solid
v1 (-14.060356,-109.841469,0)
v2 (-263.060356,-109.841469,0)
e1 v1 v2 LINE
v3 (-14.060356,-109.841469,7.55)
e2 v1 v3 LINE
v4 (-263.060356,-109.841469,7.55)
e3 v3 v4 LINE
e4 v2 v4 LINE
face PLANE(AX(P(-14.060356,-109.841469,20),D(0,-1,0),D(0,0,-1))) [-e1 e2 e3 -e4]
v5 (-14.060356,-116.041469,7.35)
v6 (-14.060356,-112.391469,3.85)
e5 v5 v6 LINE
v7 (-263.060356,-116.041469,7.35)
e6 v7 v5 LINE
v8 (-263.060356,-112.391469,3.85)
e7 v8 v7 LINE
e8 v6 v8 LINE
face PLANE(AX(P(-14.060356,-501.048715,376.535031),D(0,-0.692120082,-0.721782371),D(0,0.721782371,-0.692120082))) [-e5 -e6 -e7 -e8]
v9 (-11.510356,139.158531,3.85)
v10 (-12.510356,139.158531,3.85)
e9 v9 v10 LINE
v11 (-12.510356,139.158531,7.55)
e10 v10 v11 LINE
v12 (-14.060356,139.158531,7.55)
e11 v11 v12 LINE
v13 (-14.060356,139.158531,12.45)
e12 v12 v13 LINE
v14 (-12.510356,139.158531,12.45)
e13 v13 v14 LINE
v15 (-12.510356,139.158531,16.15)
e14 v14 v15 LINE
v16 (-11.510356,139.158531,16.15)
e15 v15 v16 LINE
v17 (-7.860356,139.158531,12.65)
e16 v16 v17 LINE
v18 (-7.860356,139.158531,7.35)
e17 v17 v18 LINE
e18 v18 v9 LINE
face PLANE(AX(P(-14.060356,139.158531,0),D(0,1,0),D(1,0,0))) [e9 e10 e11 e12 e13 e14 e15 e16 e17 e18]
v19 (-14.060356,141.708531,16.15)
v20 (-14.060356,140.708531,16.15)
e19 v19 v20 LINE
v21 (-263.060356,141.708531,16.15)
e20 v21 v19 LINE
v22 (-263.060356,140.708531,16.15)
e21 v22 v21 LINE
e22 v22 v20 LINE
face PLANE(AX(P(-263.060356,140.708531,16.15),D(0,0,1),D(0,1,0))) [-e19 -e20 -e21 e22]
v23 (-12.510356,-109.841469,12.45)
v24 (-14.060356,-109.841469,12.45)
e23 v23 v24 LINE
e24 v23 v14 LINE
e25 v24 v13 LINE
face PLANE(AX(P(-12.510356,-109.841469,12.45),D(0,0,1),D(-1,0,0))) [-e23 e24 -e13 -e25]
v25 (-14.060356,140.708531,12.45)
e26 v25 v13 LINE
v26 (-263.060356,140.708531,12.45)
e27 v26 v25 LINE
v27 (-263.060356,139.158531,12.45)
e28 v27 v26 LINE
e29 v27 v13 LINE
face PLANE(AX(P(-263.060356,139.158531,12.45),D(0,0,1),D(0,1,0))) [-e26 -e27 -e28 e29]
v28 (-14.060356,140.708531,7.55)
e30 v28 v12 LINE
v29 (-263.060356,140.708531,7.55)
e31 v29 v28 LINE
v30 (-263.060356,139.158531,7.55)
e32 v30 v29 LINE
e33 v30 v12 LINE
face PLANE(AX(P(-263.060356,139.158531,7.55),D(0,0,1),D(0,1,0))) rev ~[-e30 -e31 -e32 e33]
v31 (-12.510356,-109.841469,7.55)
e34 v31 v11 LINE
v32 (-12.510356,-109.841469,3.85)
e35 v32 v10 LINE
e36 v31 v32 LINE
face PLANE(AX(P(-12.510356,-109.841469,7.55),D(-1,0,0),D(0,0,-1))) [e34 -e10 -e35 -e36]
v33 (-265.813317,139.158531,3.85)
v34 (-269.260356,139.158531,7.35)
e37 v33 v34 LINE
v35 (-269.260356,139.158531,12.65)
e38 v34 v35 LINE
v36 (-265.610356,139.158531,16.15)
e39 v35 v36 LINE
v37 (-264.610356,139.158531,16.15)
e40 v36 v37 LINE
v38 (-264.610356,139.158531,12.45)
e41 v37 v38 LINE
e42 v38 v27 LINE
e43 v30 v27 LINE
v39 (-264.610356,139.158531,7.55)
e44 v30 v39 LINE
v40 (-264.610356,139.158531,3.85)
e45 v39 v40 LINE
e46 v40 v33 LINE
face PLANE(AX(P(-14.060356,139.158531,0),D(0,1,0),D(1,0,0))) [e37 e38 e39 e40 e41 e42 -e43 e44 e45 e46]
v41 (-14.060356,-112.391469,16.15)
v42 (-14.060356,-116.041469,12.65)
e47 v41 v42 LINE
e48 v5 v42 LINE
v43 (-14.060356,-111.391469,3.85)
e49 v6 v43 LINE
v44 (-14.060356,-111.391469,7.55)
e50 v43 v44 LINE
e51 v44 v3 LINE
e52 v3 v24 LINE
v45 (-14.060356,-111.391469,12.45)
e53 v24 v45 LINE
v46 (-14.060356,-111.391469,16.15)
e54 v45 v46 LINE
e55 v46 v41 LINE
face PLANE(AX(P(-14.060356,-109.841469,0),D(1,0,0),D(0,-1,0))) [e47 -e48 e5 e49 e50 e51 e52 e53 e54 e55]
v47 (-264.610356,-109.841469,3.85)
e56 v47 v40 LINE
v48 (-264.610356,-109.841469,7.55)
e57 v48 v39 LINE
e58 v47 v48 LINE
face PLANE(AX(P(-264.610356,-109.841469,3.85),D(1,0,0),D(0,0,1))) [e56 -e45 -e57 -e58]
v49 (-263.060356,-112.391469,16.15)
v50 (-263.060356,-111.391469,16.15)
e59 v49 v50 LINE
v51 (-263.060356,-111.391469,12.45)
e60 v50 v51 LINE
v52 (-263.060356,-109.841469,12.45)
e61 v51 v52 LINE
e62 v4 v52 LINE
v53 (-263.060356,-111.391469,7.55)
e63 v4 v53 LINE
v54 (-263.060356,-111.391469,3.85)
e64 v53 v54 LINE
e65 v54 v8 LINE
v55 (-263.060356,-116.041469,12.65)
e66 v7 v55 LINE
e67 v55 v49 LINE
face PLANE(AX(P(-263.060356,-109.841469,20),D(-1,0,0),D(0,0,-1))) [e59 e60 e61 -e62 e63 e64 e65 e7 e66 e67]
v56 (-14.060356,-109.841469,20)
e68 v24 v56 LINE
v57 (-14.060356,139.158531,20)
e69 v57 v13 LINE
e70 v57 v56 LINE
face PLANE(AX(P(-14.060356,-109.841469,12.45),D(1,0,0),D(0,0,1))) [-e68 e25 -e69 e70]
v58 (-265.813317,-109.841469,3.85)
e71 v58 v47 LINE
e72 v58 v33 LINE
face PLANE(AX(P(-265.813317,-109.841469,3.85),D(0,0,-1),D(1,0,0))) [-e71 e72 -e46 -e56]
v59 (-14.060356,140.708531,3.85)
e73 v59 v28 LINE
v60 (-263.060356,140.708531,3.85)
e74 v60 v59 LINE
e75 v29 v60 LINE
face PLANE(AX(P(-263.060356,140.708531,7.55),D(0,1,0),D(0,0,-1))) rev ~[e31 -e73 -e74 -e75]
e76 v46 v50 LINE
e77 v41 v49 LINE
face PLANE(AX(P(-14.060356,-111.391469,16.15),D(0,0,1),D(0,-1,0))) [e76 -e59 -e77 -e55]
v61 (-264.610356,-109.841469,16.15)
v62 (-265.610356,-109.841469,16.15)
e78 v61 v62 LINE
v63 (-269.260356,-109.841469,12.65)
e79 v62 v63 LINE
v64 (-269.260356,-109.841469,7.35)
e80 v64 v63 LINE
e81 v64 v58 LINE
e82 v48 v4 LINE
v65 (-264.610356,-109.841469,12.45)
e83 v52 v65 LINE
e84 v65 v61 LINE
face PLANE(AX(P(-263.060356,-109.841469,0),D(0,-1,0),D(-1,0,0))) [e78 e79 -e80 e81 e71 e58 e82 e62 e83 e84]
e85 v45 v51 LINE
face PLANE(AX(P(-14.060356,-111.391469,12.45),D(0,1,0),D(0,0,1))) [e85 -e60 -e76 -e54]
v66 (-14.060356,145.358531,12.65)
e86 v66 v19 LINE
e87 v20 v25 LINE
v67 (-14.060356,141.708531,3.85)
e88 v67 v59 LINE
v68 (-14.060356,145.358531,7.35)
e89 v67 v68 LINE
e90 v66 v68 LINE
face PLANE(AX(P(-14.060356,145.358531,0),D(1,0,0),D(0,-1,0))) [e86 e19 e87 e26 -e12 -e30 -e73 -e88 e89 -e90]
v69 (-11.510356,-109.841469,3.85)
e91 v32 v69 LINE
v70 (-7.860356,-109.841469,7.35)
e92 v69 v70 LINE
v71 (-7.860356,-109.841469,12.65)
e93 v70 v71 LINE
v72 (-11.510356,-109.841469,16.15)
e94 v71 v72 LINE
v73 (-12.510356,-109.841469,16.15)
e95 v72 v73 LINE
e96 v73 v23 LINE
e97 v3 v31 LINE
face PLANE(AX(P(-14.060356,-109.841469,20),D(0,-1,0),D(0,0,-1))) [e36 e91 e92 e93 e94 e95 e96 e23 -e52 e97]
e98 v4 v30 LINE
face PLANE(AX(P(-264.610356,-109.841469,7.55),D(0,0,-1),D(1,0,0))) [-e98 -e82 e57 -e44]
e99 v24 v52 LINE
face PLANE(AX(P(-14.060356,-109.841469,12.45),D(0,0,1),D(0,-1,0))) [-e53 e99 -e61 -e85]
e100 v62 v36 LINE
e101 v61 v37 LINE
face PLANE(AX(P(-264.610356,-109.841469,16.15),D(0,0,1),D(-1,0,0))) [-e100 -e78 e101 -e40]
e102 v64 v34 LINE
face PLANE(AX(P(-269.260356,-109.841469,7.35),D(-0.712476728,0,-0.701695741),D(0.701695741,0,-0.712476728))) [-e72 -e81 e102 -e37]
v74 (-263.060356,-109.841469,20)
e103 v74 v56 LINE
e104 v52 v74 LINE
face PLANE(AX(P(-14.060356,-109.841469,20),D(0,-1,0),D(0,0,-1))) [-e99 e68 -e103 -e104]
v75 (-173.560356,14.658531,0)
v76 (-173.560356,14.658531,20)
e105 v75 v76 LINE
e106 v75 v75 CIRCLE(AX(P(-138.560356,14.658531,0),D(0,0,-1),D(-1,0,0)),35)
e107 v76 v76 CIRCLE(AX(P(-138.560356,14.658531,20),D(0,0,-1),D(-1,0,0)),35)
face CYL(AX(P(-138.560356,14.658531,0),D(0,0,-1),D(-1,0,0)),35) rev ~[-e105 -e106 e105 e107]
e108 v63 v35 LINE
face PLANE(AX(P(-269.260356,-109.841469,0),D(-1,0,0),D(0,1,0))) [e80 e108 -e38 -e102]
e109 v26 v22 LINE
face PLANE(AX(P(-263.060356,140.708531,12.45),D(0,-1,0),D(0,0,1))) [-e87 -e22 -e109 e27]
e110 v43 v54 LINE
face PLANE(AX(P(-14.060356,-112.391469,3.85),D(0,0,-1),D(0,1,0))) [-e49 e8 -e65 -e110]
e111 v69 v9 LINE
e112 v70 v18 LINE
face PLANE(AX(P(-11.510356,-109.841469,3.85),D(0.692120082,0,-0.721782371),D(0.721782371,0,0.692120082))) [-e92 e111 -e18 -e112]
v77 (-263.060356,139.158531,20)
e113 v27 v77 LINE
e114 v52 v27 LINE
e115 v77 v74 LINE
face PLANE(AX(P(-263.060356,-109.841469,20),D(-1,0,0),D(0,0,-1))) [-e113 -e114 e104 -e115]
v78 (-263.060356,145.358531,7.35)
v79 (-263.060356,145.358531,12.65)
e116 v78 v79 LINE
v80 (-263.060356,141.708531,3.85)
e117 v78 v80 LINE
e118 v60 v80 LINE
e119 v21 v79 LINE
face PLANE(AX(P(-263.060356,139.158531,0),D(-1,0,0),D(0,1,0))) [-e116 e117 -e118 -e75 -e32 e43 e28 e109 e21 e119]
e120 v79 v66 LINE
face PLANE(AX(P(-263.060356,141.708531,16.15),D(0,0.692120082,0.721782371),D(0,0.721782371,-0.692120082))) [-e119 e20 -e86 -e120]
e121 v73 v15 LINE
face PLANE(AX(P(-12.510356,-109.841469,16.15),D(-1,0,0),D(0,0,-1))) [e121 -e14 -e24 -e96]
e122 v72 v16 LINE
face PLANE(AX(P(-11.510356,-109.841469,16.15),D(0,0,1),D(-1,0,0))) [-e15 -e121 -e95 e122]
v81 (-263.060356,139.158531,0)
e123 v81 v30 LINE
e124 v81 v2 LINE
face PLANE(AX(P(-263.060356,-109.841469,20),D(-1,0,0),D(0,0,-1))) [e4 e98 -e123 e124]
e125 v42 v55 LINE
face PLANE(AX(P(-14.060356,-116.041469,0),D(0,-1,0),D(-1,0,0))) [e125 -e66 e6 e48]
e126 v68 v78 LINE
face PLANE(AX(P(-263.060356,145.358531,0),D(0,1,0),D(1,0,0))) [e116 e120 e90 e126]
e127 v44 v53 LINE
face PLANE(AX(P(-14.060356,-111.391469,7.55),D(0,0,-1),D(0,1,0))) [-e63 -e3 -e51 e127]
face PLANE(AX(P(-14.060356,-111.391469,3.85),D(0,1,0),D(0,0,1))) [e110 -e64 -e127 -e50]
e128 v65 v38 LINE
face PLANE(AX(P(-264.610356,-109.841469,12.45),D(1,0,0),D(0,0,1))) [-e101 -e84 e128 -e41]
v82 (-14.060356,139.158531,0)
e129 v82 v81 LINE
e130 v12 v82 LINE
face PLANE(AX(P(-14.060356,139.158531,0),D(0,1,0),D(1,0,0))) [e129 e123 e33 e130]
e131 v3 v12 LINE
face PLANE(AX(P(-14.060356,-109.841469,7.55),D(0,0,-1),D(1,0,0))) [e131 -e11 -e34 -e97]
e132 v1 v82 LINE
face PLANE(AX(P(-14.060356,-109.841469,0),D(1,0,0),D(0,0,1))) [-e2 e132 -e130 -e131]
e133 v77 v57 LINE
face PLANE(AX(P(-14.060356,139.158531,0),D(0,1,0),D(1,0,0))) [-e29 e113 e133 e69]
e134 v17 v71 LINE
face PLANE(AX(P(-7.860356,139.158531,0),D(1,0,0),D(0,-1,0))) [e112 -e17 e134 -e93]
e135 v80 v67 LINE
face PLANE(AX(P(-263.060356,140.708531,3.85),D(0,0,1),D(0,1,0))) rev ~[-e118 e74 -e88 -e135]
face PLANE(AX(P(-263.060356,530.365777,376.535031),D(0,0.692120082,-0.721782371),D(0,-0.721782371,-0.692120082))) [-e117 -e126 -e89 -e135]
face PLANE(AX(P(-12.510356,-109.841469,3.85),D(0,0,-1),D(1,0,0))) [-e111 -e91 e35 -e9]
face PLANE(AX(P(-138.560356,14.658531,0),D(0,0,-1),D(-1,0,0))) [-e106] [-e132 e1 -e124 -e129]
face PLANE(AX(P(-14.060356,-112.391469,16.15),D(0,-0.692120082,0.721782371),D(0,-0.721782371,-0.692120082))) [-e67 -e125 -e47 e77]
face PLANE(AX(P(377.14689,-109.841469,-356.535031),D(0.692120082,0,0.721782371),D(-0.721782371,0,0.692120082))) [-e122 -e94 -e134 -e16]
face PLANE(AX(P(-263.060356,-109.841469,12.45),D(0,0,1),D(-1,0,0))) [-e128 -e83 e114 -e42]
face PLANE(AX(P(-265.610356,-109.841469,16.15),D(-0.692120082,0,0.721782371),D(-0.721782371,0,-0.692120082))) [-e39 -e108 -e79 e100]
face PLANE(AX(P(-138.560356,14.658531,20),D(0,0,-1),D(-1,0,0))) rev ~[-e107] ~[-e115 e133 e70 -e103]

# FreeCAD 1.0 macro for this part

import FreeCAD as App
import Part
import Sketcher
from FreeCAD import Vector


def add_polygon(sketch, points):
    """Adds a closed chain of lines whose ends are joined by coincident constraints."""
    first, n = sketch.GeometryCount, len(points)
    for a, b in zip(points, points[1:] + points[:1]):
        sketch.addGeometry(Part.LineSegment(App.Vector(*a, 0), App.Vector(*b, 0)), False)
    for i in range(n):
        sketch.addConstraint(Sketcher.Constraint("Coincident", first + i, 2, first + (i + 1) % n, 1))

doc = App.newDocument("Part")
body = doc.addObject("PartDesign::Body", "Body")

# Sketch on XY plane
sketch1 = body.newObject("Sketcher::SketchObject", "Sketch")
sketch1.AttachmentSupport = (doc.getObject("XY_Plane"), [""])
sketch1.MapMode = "FlatFace"
add_polygon(sketch1, [(-14, 145), (-263, 145), (-263, 139), (-269, 139), (-269, -110), (-263, -110), (-263, -116), (-14, -116), (-14, -110), (-8, -110), (-8, 139), (-14, 139)])  # lines 0-11
sketch1.addConstraint([
    Sketcher.Constraint("Horizontal", 0),
    Sketcher.Constraint("Vertical", 1),
    Sketcher.Constraint("Horizontal", 2),
    Sketcher.Constraint("Vertical", 3),
    Sketcher.Constraint("Horizontal", 4),
    Sketcher.Constraint("Vertical", 5),
    Sketcher.Constraint("Horizontal", 6),
    Sketcher.Constraint("Vertical", 7),
    Sketcher.Constraint("Horizontal", 8),
    Sketcher.Constraint("Vertical", 9),
    Sketcher.Constraint("Horizontal", 10),
    Sketcher.Constraint("Vertical", 11),
    Sketcher.Constraint("Horizontal", 4, 2, 7, 2),
    Sketcher.Constraint("Horizontal", 2, 2, 9, 2),
    Sketcher.Constraint("Vertical", 1, 2, 4, 2),
    Sketcher.Constraint("Vertical", 7, 2, 10, 2),
    Sketcher.Constraint("Equal", 4, 8),
    Sketcher.Constraint("Equal", 10, 1),
    Sketcher.Constraint("Equal", 6, 3),
    Sketcher.Constraint("Equal", 1, 5),
    Sketcher.Constraint("DistanceX", 0, 2, 0, 1, 249.0),
    Sketcher.Constraint("DistanceX", 2, 2, 2, 1, 6.2),
    Sketcher.Constraint("DistanceY", -1, 1, 0, 2, 145.358531),
    Sketcher.Constraint("DistanceX", 0, 2, -1, 1, 263.060356),
])
pad1 = body.newObject("PartDesign::Pad", "Pad")
pad1.Profile = sketch1
pad1.Length = 20

# Sketch on YZ plane
sketch2 = body.newObject("Sketcher::SketchObject", "Sketch001")
sketch2.AttachmentSupport = (doc.getObject("YZ_Plane"), [""])
sketch2.MapMode = "FlatFace"
sketch2.AttachmentOffset = App.Placement(Vector(0, 0, -14.060356), App.Rotation())
add_polygon(sketch2, [(139.2, 553.4), (139.2, 12.4), (140.7, 12.4), (140.7, 16.1), (141.7, 16.1), (530.4, -356.5), (1510.5, 64.8), (1119.2, 974.8)])  # lines 0-7
sketch2.addConstraint([
    Sketcher.Constraint("Vertical", 0),
    Sketcher.Constraint("Horizontal", 1),
    Sketcher.Constraint("Vertical", 2),
    Sketcher.Constraint("Horizontal", 3),
    Sketcher.Constraint("Perpendicular", 5, 6),
    Sketcher.Constraint("Perpendicular", 6, 7),
    Sketcher.Constraint("Equal", 5, 7),
    Sketcher.Constraint("DistanceX", 3, 1, 3, 2, 1.0),
    Sketcher.Constraint("DistanceY", 2, 1, 2, 2, 3.7),
    Sketcher.Constraint("DistanceX", 1, 1, 1, 2, 1.55),
    Sketcher.Constraint("DistanceY", -1, 1, 0, 2, 12.45),
    Sketcher.Constraint("DistanceY", 4, 2, 5, 2, 421.361402),
    Sketcher.Constraint("Distance", 6, 990.477852),
    Sketcher.Constraint("DistanceY", 0, 2, 0, 1, 540.961817),
    Sketcher.Constraint("DistanceX", -1, 1, 0, 2, 139.158531),
    Sketcher.Constraint("DistanceY", 4, 2, -1, 1, 356.535031),
])
pocket1 = body.newObject("PartDesign::Pocket", "Pocket")
pocket1.Profile = sketch2
pocket1.Type = "ThroughAll"
pocket1.Midplane = True

# Sketch on YZ plane
sketch3 = body.newObject("Sketcher::SketchObject", "Sketch002")
sketch3.AttachmentSupport = (doc.getObject("YZ_Plane"), [""])
sketch3.MapMode = "FlatFace"
sketch3.AttachmentOffset = App.Placement(Vector(0, 0, -14.060356), App.Rotation())
add_polygon(sketch3, [(139.2, 7.5), (139.2, -533.4), (1119.2, -954.8), (1510.5, -44.8), (530.4, 376.5), (141.7, 3.9), (140.7, 3.9), (140.7, 7.5)])  # lines 0-7
sketch3.addConstraint([
    Sketcher.Constraint("Vertical", 0),
    Sketcher.Constraint("Horizontal", 5),
    Sketcher.Constraint("Vertical", 6),
    Sketcher.Constraint("Horizontal", 7),
    Sketcher.Constraint("Perpendicular", 1, 2),
    Sketcher.Constraint("Perpendicular", 2, 3),
    Sketcher.Constraint("Equal", 1, 3),
    Sketcher.Constraint("DistanceX", 5, 2, 5, 1, 1.0),
    Sketcher.Constraint("DistanceY", 6, 1, 6, 2, 3.7),
    Sketcher.Constraint("DistanceX", 7, 2, 7, 1, 1.55),
    Sketcher.Constraint("DistanceY", -1, 1, 4, 2, 3.85),
    Sketcher.Constraint("DistanceY", 1, 2, 0, 2, 421.361402),
    Sketcher.Constraint("Distance", 2, 990.477852),
    Sketcher.Constraint("DistanceY", 0, 2, 0, 1, 540.961817),
    Sketcher.Constraint("DistanceX", -1, 1, 0, 2, 139.158531),
    Sketcher.Constraint("DistanceX", -1, 1, 1, 2, 1119.243851),
])
pocket2 = body.newObject("PartDesign::Pocket", "Pocket001")
pocket2.Profile = sketch3
pocket2.Type = "ThroughAll"
pocket2.Midplane = True

# Sketch on XZ plane
sketch4 = body.newObject("Sketcher::SketchObject", "Sketch003")
sketch4.AttachmentSupport = (doc.getObject("XZ_Plane"), [""])
sketch4.MapMode = "FlatFace"
sketch4.AttachmentOffset = App.Placement(Vector(0, 0, -139.158531), App.Rotation())
add_polygon(sketch4, [(-263.1, 20), (-263.1, 12.4), (-264.6, 12.4), (-264.6, 16.1), (-265.6, 16.1), (-269.3, 12.7), (-269.3, 20)])  # lines 0-6
sketch4.addConstraint([
    Sketcher.Constraint("Vertical", 0),
    Sketcher.Constraint("Horizontal", 1),
    Sketcher.Constraint("Vertical", 2),
    Sketcher.Constraint("Horizontal", 3),
    Sketcher.Constraint("Vertical", 5),
    Sketcher.Constraint("Horizontal", 6),
    Sketcher.Constraint("DistanceX", 3, 2, 3, 1, 1.0),
    Sketcher.Constraint("DistanceX", 6, 1, 6, 2, 6.2),
    Sketcher.Constraint("DistanceY", 2, 1, 2, 2, 3.7),
    Sketcher.Constraint("DistanceY", -1, 1, 5, 2, 20.0),
    Sketcher.Constraint("DistanceX", 1, 2, 1, 1, 1.55),
    Sketcher.Constraint("DistanceY", 0, 2, 0, 1, 7.55),
    Sketcher.Constraint("DistanceY", 5, 1, 5, 2, 7.35),
    Sketcher.Constraint("DistanceX", 0, 2, -1, 1, 263.060356),
])
pocket3 = body.newObject("PartDesign::Pocket", "Pocket002")
pocket3.Profile = sketch4
pocket3.Type = "ThroughAll"
pocket3.Midplane = True

# Sketch on XZ plane
sketch5 = body.newObject("Sketcher::SketchObject", "Sketch004")
sketch5.AttachmentSupport = (doc.getObject("XZ_Plane"), [""])
sketch5.MapMode = "FlatFace"
sketch5.AttachmentOffset = App.Placement(Vector(0, 0, -139.158531), App.Rotation())
add_polygon(sketch5, [(-643.6, 387.4), (-269.3, 7.3), (-265.8, 3.9), (-264.6, 3.9), (-264.6, 7.5), (-263.1, 7.5), (-263.1, -533.4), (-1249, -940.8), (-1629.5, -20)])  # lines 0-8
sketch5.addConstraint([
    Sketcher.Constraint("Horizontal", 2),
    Sketcher.Constraint("Vertical", 3),
    Sketcher.Constraint("Horizontal", 4),
    Sketcher.Constraint("Vertical", 5),
    Sketcher.Constraint("Parallel", 0, 1),
    Sketcher.Constraint("Perpendicular", 6, 7),
    Sketcher.Constraint("Perpendicular", 7, 8),
    Sketcher.Constraint("Equal", 6, 8),
    Sketcher.Constraint("DistanceY", 3, 1, 3, 2, 3.7),
    Sketcher.Constraint("DistanceX", 4, 1, 4, 2, 1.55),
    Sketcher.Constraint("DistanceY", 1, 2, 0, 2, 3.5),
    Sketcher.Constraint("DistanceX", 0, 2, 4, 2, 6.2),
    Sketcher.Constraint("DistanceY", -1, 1, 0, 2, 7.35),
    Sketcher.Constraint("DistanceX", 2, 1, 2, 2, 1.202961),
    Sketcher.Constraint("DistanceX", 7, 2, 6, 2, 380.4928),
    Sketcher.Constraint("DistanceY", 5, 2, 5, 1, 540.961817),
    Sketcher.Constraint("DistanceY", 7, 2, -1, 1, 20.023751),
    Sketcher.Constraint("DistanceX", 0, 2, -1, 1, 269.260356),
])
pocket4 = body.newObject("PartDesign::Pocket", "Pocket003")
pocket4.Profile = sketch5
pocket4.Type = "ThroughAll"
pocket4.Midplane = True

# Sketch on YZ plane
sketch6 = body.newObject("Sketcher::SketchObject", "Sketch005")
sketch6.AttachmentSupport = (doc.getObject("YZ_Plane"), [""])
sketch6.MapMode = "FlatFace"
sketch6.AttachmentOffset = App.Placement(Vector(0, 0, -263.060356), App.Rotation())
add_polygon(sketch6, [(-109.8, 20), (-109.8, 12.4), (-111.4, 12.4), (-111.4, 16.1), (-112.4, 16.1), (-116, 12.7), (-116, 20)])  # lines 0-6
sketch6.addConstraint([
    Sketcher.Constraint("Vertical", 0),
    Sketcher.Constraint("Horizontal", 1),
    Sketcher.Constraint("Vertical", 2),
    Sketcher.Constraint("Horizontal", 3),
    Sketcher.Constraint("Vertical", 5),
    Sketcher.Constraint("Horizontal", 6),
    Sketcher.Constraint("DistanceX", 3, 2, 3, 1, 1.0),
    Sketcher.Constraint("DistanceX", 6, 1, 6, 2, 6.2),
    Sketcher.Constraint("DistanceY", 2, 1, 2, 2, 3.7),
    Sketcher.Constraint("DistanceY", -1, 1, 5, 2, 20.0),
    Sketcher.Constraint("DistanceX", 1, 2, 1, 1, 1.55),
    Sketcher.Constraint("DistanceY", 0, 2, 0, 1, 7.55),
    Sketcher.Constraint("DistanceY", 5, 1, 5, 2, 7.35),
    Sketcher.Constraint("DistanceX", 0, 2, -1, 1, 109.841469),
])
pocket5 = body.newObject("PartDesign::Pocket", "Pocket004")
pocket5.Profile = sketch6
pocket5.Type = "ThroughAll"
pocket5.Midplane = True

# Sketch on YZ plane
sketch7 = body.newObject("Sketcher::SketchObject", "Sketch006")
sketch7.AttachmentSupport = (doc.getObject("YZ_Plane"), [""])
sketch7.MapMode = "FlatFace"
sketch7.AttachmentOffset = App.Placement(Vector(0, 0, -263.060356), App.Rotation())
add_polygon(sketch7, [(-501, 376.5), (-112.4, 3.9), (-111.4, 3.9), (-111.4, 7.5), (-109.8, 7.5), (-109.8, -533.4), (-1089.9, -954.8), (-1481.1, -44.8)])  # lines 0-7
sketch7.addConstraint([
    Sketcher.Constraint("Horizontal", 1),
    Sketcher.Constraint("Vertical", 2),
    Sketcher.Constraint("Horizontal", 3),
    Sketcher.Constraint("Vertical", 4),
    Sketcher.Constraint("Perpendicular", 5, 6),
    Sketcher.Constraint("Perpendicular", 6, 7),
    Sketcher.Constraint("Equal", 5, 7),
    Sketcher.Constraint("DistanceX", 1, 1, 1, 2, 1.0),
    Sketcher.Constraint("DistanceY", 2, 1, 2, 2, 3.7),
    Sketcher.Constraint("DistanceX", 3, 1, 3, 2, 1.55),
    Sketcher.Constraint("DistanceY", -1, 1, 0, 2, 3.85),
    Sketcher.Constraint("DistanceY", 5, 2, 4, 2, 421.361402),
    Sketcher.Constraint("Distance", 6, 990.477852),
    Sketcher.Constraint("DistanceY", 4, 2, 4, 1, 540.961817),
    Sketcher.Constraint("DistanceX", 0, 2, -1, 1, 112.391469),
    Sketcher.Constraint("DistanceX", 5, 2, -1, 1, 1089.926789),
])
pocket6 = body.newObject("PartDesign::Pocket", "Pocket005")
pocket6.Profile = sketch7
pocket6.Type = "ThroughAll"
pocket6.Midplane = True

# Sketch on XZ plane
sketch8 = body.newObject("Sketcher::SketchObject", "Sketch007")
sketch8.AttachmentSupport = (doc.getObject("XZ_Plane"), [""])
sketch8.MapMode = "FlatFace"
sketch8.AttachmentOffset = App.Placement(Vector(0, 0, -139.158531), App.Rotation())
add_polygon(sketch8, [(-14.1, 0), (-14.1, 7.5), (-12.5, 7.5), (-12.5, 3.9), (-11.5, 3.9), (-7.9, 7.3), (-7.9, 0)])  # lines 0-6
sketch8.addConstraint([
    Sketcher.Constraint("Vertical", 0),
    Sketcher.Constraint("Horizontal", 1),
    Sketcher.Constraint("Vertical", 2),
    Sketcher.Constraint("Horizontal", 3),
    Sketcher.Constraint("Vertical", 5),
    Sketcher.Constraint("Horizontal", 6),
    Sketcher.Constraint("PointOnObject", 5, 2, -1),
    Sketcher.Constraint("DistanceX", 3, 1, 3, 2, 1.0),
    Sketcher.Constraint("DistanceX", 6, 2, 6, 1, 6.2),
    Sketcher.Constraint("DistanceY", 2, 2, 2, 1, 3.7),
    Sketcher.Constraint("DistanceX", 1, 1, 1, 2, 1.55),
    Sketcher.Constraint("DistanceY", 0, 1, 0, 2, 7.55),
    Sketcher.Constraint("DistanceY", 5, 2, 5, 1, 7.35),
    Sketcher.Constraint("DistanceX", 0, 2, -1, 1, 14.060356),
])
pocket7 = body.newObject("PartDesign::Pocket", "Pocket006")
pocket7.Profile = sketch8
pocket7.Type = "ThroughAll"
pocket7.Midplane = True

# Sketch on XZ plane
sketch9 = body.newObject("Sketcher::SketchObject", "Sketch008")
sketch9.AttachmentSupport = (doc.getObject("XZ_Plane"), [""])
sketch9.MapMode = "FlatFace"
sketch9.AttachmentOffset = App.Placement(Vector(0, 0, -139.158531), App.Rotation())
add_polygon(sketch9, [(377.1, -356.5), (-11.5, 16.1), (-12.5, 16.1), (-12.5, 12.4), (-14.1, 12.4), (-14.1, 553.4), (966, 974.8), (1357.2, 64.8)])  # lines 0-7
sketch9.addConstraint([
    Sketcher.Constraint("Horizontal", 1),
    Sketcher.Constraint("Vertical", 2),
    Sketcher.Constraint("Horizontal", 3),
    Sketcher.Constraint("Vertical", 4),
    Sketcher.Constraint("Perpendicular", 5, 6),
    Sketcher.Constraint("Perpendicular", 6, 7),
    Sketcher.Constraint("Equal", 5, 7),
    Sketcher.Constraint("DistanceX", 1, 2, 1, 1, 1.0),
    Sketcher.Constraint("DistanceY", 2, 2, 2, 1, 3.7),
    Sketcher.Constraint("DistanceX", 3, 2, 3, 1, 1.55),
    Sketcher.Constraint("DistanceY", -1, 1, 0, 2, 16.15),
    Sketcher.Constraint("DistanceY", 4, 2, 5, 2, 421.361402),
    Sketcher.Constraint("Distance", 6, 990.477852),
    Sketcher.Constraint("DistanceY", 4, 1, 4, 2, 540.961817),
    Sketcher.Constraint("DistanceX", -1, 1, 6, 2, 1357.23221),
    Sketcher.Constraint("DistanceY", -1, 1, 6, 2, 64.826371),
])
pocket8 = body.newObject("PartDesign::Pocket", "Pocket007")
pocket8.Profile = sketch9
pocket8.Type = "ThroughAll"
pocket8.Midplane = True

# Sketch on XY plane
sketch10 = body.newObject("Sketcher::SketchObject", "Sketch009")
sketch10.AttachmentSupport = (doc.getObject("XY_Plane"), [""])
sketch10.MapMode = "FlatFace"
sketch10.addGeometry(Part.Circle(Vector(-139, 15, 0), Vector(0, 0, 1), 35), False)
sketch10.addConstraint([
    Sketcher.Constraint("Diameter", 0, 70.0),
    Sketcher.Constraint("DistanceY", -1, 1, 0, 3, 14.658531),
    Sketcher.Constraint("DistanceX", 0, 3, -1, 1, 138.560356),
])
pocket9 = body.newObject("PartDesign::Pocket", "Pocket008")
pocket9.Profile = sketch10
pocket9.Length = 20
pocket9.Reversed = True

doc.recompute()
